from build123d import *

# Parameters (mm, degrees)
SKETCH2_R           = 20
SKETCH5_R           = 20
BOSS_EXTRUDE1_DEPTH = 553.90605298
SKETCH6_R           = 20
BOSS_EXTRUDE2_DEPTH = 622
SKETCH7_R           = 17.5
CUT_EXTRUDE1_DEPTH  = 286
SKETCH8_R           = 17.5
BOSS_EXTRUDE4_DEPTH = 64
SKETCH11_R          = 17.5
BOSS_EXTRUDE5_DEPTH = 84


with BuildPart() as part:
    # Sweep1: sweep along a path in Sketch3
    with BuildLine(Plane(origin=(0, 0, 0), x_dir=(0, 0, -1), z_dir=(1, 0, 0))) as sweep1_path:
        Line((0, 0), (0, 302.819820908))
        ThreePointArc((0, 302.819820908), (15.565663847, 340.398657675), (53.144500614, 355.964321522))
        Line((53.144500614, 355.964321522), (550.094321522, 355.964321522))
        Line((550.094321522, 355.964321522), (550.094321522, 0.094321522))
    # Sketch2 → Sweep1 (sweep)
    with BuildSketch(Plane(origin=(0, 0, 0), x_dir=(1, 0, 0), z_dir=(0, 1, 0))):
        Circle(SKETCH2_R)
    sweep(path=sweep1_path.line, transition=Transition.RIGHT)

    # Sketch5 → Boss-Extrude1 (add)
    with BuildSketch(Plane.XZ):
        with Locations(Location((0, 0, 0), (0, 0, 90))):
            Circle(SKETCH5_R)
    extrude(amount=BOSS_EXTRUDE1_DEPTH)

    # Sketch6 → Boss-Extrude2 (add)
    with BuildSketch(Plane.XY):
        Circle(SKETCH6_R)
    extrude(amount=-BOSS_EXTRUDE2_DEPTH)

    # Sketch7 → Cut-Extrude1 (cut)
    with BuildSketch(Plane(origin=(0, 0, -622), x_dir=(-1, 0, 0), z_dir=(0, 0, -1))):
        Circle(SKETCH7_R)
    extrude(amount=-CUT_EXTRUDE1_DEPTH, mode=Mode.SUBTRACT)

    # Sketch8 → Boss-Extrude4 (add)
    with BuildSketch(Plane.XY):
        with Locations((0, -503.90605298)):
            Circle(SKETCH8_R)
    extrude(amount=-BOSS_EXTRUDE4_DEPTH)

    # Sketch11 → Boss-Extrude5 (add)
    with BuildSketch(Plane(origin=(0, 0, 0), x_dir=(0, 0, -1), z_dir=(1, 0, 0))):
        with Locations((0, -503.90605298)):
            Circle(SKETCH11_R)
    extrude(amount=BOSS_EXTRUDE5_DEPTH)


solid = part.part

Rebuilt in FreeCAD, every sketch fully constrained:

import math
import FreeCAD as App
import Part
import Sketcher

V = App.Vector

doc = App.newDocument("Part")
params = doc.addObject("Spreadsheet::Sheet", "Params")
for row, (alias, value) in enumerate([
    ("sketch1_diameter", "40 mm"),
    ("sketch2_width", "355.87 mm"),
    ("sketch3_diameter", "40 mm"),
    ("pad1_length", "553.906053 mm"),
    ("sketch4_diameter", "40 mm"),
    ("pad2_length", "622 mm"),
    ("sketch5_diameter", "35 mm"),
    ("pocket1_length", "286 mm"),
    ("sketch6_diameter", "35 mm"),
    ("pad3_length", "64 mm"),
    ("sketch7_diameter", "35 mm"),
    ("pad4_length", "84 mm"),
], start=1):
    params.set(f"A{row}", alias)
    params.set(f"B{row}", "=" + value)
    params.setAlias(f"B{row}", alias)

body = doc.addObject("PartDesign::Body", "Body")

# Sketch on XZ plane
sketch1 = body.newObject("Sketcher::SketchObject", "Sketch")
sketch1.AttachmentSupport = (doc.getObject("XZ_Plane"), [""])
sketch1.MapMode = "FlatFace"
sketch1.addGeometry(Part.Circle(V(0, 0, 0), V(0, 0, 1), 20), False)
sketch1.addConstraint(Sketcher.Constraint("Coincident", 0, 3, -1, 1))
sketch1.addConstraint(Sketcher.Constraint("Diameter", 0, 40.0))
sketch1.setExpression("Constraints[1]", "Params.sketch1_diameter")

# Sketch on YZ plane
sketch2 = body.newObject("Sketcher::SketchObject", "Sketch001")
sketch2.AttachmentSupport = (doc.getObject("YZ_Plane"), [""])
sketch2.MapMode = "FlatFace"
sketch2.addGeometry(Part.LineSegment(V(0, 0, 0), V(303, 0, 0)), False)
sketch2.addGeometry(Part.ArcOfCircle(Part.Circle(V(303, -53, 0), V(0, 0, 1), 53), math.radians(0), math.radians(90)), False)
sketch2.addGeometry(Part.LineSegment(V(356, -53, 0), V(356, -550, 0)), False)
sketch2.addGeometry(Part.LineSegment(V(356, -550, 0), V(0, -550, 0)), False)
sketch2.addConstraint(Sketcher.Constraint("Tangent", 0, 2, 1, 2))
sketch2.addConstraint(Sketcher.Constraint("Tangent", 1, 1, 2, 1))
sketch2.addConstraint(Sketcher.Constraint("Coincident", 2, 2, 3, 1))
sketch2.addConstraint(Sketcher.Constraint("Horizontal", 0))
sketch2.addConstraint(Sketcher.Constraint("Vertical", 2))
sketch2.addConstraint(Sketcher.Constraint("Horizontal", 3))
sketch2.addConstraint(Sketcher.Constraint("Coincident", 0, 1, -1, 1))
sketch2.addConstraint(Sketcher.Constraint("DistanceX", 3, 2, 3, 1, 355.87))
sketch2.addConstraint(Sketcher.Constraint("Radius", 1, 53.144501))
sketch2.addConstraint(Sketcher.Constraint("DistanceX", 0, 1, 0, 2, 302.819821))
sketch2.addConstraint(Sketcher.Constraint("DistanceY", 2, 2, 2, 1, 496.949821))
sketch2.setExpression("Constraints[7]", "Params.sketch2_width")
doc.recompute()

additivepipe = body.newObject("PartDesign::AdditivePipe", "AdditivePipe")
additivepipe.Profile = sketch1
additivepipe.Spine = (sketch2, ["Edge1", "Edge2", "Edge3", "Edge4"])
additivepipe.Transition = "Right corner"

# Sketch on XZ plane
sketch3 = body.newObject("Sketcher::SketchObject", "Sketch002")
sketch3.AttachmentSupport = (doc.getObject("XZ_Plane"), [""])
sketch3.MapMode = "FlatFace"
sketch3.addGeometry(Part.Circle(V(0, 0, 0), V(0, 0, 1), 20), False)
sketch3.addConstraint(Sketcher.Constraint("Coincident", 0, 3, -1, 1))
sketch3.addConstraint(Sketcher.Constraint("Diameter", 0, 40.0))
sketch3.setExpression("Constraints[1]", "Params.sketch3_diameter")
pad1 = body.newObject("PartDesign::Pad", "Pad")
pad1.Profile = sketch3
pad1.setExpression("Length", "Params.pad1_length")

# Sketch on XY plane
sketch4 = body.newObject("Sketcher::SketchObject", "Sketch003")
sketch4.AttachmentSupport = (doc.getObject("XY_Plane"), [""])
sketch4.MapMode = "FlatFace"
sketch4.addGeometry(Part.Circle(V(0, 0, 0), V(0, 0, 1), 20), False)
sketch4.addConstraint(Sketcher.Constraint("Coincident", 0, 3, -1, 1))
sketch4.addConstraint(Sketcher.Constraint("Diameter", 0, 40.0))
sketch4.setExpression("Constraints[1]", "Params.sketch4_diameter")
pad2 = body.newObject("PartDesign::Pad", "Pad001")
pad2.Profile = sketch4
pad2.setExpression("Length", "Params.pad2_length")
pad2.Reversed = True

# Sketch on XY plane
sketch5 = body.newObject("Sketcher::SketchObject", "Sketch004")
sketch5.AttachmentSupport = (doc.getObject("XY_Plane"), [""])
sketch5.MapMode = "FlatFace"
sketch5.AttachmentOffset = App.Placement(V(0, 0, -622), App.Rotation())
sketch5.addGeometry(Part.Circle(V(0, 0, 0), V(0, 0, 1), 18), False)
sketch5.addConstraint(Sketcher.Constraint("Coincident", 0, 3, -1, 1))
sketch5.addConstraint(Sketcher.Constraint("Diameter", 0, 35.0))
sketch5.setExpression("Constraints[1]", "Params.sketch5_diameter")
pocket1 = body.newObject("PartDesign::Pocket", "Pocket")
pocket1.Profile = sketch5
pocket1.setExpression("Length", "Params.pocket1_length")
pocket1.Reversed = True

# Sketch on XY plane
sketch6 = body.newObject("Sketcher::SketchObject", "Sketch005")
sketch6.AttachmentSupport = (doc.getObject("XY_Plane"), [""])
sketch6.MapMode = "FlatFace"
sketch6.addGeometry(Part.Circle(V(0, -504, 0), V(0, 0, 1), 18), False)
sketch6.addConstraint(Sketcher.Constraint("PointOnObject", 0, 3, -2))
sketch6.addConstraint(Sketcher.Constraint("Diameter", 0, 35.0))
sketch6.addConstraint(Sketcher.Constraint("DistanceY", 0, 3, -1, 1, 503.906053))
sketch6.setExpression("Constraints[1]", "Params.sketch6_diameter")
pad3 = body.newObject("PartDesign::Pad", "Pad002")
pad3.Profile = sketch6
pad3.setExpression("Length", "Params.pad3_length")
pad3.Reversed = True

# Sketch on YZ plane
sketch7 = body.newObject("Sketcher::SketchObject", "Sketch006")
sketch7.AttachmentSupport = (doc.getObject("YZ_Plane"), [""])
sketch7.MapMode = "FlatFace"
sketch7.addGeometry(Part.Circle(V(-504, 0, 0), V(0, 0, 1), 18), False)
sketch7.addConstraint(Sketcher.Constraint("PointOnObject", 0, 3, -1))
sketch7.addConstraint(Sketcher.Constraint("Diameter", 0, 35.0))
sketch7.addConstraint(Sketcher.Constraint("DistanceX", 0, 3, -1, 1, 503.906053))
sketch7.setExpression("Constraints[1]", "Params.sketch7_diameter")
pad4 = body.newObject("PartDesign::Pad", "Pad003")
pad4.Profile = sketch7
pad4.setExpression("Length", "Params.pad4_length")

doc.recompute()
